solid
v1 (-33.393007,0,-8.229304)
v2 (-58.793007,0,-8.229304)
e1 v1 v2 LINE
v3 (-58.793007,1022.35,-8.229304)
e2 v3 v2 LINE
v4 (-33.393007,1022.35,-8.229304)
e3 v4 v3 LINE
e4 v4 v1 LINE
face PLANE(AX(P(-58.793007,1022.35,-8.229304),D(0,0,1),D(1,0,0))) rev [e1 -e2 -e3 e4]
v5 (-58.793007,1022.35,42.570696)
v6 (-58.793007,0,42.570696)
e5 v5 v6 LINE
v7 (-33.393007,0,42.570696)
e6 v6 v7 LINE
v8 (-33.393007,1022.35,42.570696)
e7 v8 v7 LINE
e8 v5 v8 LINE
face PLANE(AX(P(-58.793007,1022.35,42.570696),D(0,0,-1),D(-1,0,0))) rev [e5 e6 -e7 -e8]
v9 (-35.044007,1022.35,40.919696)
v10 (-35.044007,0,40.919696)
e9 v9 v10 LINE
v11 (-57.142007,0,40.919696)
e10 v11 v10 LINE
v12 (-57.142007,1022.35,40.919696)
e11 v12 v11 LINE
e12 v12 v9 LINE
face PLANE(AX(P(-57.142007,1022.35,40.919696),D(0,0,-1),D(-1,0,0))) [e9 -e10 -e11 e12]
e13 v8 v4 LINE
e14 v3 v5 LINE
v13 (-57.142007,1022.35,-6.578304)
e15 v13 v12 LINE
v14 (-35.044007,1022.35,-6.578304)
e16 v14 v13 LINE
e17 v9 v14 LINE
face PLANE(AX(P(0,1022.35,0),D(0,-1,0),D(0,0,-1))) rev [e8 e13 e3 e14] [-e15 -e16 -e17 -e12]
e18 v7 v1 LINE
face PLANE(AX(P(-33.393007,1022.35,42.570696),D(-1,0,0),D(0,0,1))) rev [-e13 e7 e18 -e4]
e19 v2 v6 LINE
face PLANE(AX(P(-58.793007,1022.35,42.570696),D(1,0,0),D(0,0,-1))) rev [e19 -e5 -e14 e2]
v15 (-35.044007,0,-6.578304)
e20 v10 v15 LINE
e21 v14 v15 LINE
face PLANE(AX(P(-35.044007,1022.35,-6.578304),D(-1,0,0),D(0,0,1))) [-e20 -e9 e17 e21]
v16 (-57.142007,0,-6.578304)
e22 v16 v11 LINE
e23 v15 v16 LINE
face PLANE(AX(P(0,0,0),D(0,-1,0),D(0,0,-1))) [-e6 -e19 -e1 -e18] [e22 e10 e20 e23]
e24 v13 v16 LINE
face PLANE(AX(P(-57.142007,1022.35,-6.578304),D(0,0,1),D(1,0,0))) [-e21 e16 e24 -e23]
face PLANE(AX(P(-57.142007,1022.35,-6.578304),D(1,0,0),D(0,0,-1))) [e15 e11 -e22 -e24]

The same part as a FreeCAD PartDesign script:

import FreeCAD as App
import Part
import Sketcher

V = App.Vector
Q = App.Units.Quantity

doc = App.newDocument("Part")
body = doc.addObject("PartDesign::Body", "Body")

# Sketch on XZ plane
sketch1 = doc.addObject("Sketcher::SketchObject", "Sketch")
body.addObject(sketch1)
sketch1.AttachmentSupport = (doc.XZ_Plane, [""])
sketch1.MapMode = "FlatFace"
sketch1.addGeometry([
    Part.LineSegment(V(-59, -8, 0), V(-59, 43, 0)),  # 0
    Part.LineSegment(V(-59, 43, 0), V(-33, 43, 0)),  # 1
    Part.LineSegment(V(-33, 43, 0), V(-33, -8, 0)),  # 2
    Part.LineSegment(V(-33, -8, 0), V(-59, -8, 0)),  # 3
    Part.LineSegment(V(-35, 41, 0), V(-57, 41, 0)),  # 4
    Part.LineSegment(V(-57, 41, 0), V(-57, -7, 0)),  # 5
    Part.LineSegment(V(-57, -7, 0), V(-35, -7, 0)),  # 6
    Part.LineSegment(V(-35, -7, 0), V(-35, 41, 0)),  # 7
], False)
sketch1.addConstraint([
    Sketcher.Constraint("Coincident", 0, 2, 1, 1),
    Sketcher.Constraint("Coincident", 1, 2, 2, 1),
    Sketcher.Constraint("Coincident", 2, 2, 3, 1),
    Sketcher.Constraint("Coincident", 3, 2, 0, 1),
    Sketcher.Constraint("Coincident", 4, 2, 5, 1),
    Sketcher.Constraint("Coincident", 5, 2, 6, 1),
    Sketcher.Constraint("Coincident", 6, 2, 7, 1),
    Sketcher.Constraint("Coincident", 7, 2, 4, 1),
    Sketcher.Constraint("Vertical", 0),
    Sketcher.Constraint("Horizontal", 1),
    Sketcher.Constraint("Vertical", 2),
    Sketcher.Constraint("Horizontal", 3),
    Sketcher.Constraint("Horizontal", 4),
    Sketcher.Constraint("Vertical", 5),
    Sketcher.Constraint("Horizontal", 6),
    Sketcher.Constraint("Vertical", 7),
    Sketcher.Constraint("DistanceX", 1, 1, 1, 2, Q("1 in")),
    Sketcher.Constraint("DistanceY", 0, 1, 0, 2, Q("2 in")),
    Sketcher.Constraint("DistanceX", 4, 2, 4, 1, Q("0.87 in")),
    Sketcher.Constraint("DistanceY", 5, 2, 5, 1, Q("1.87 in")),
    Sketcher.Constraint("DistanceX", 0, 2, 4, 2, Q("0.065 in")),
    Sketcher.Constraint("DistanceY", 4, 2, 0, 2, Q("0.065 in")),
    Sketcher.Constraint("DistanceX", 0, 2, -1, 1, Q("58.793007 mm")),
    Sketcher.Constraint("DistanceY", -1, 1, 0, 2, Q("42.570696 mm")),
])
pad1 = doc.addObject("PartDesign::Pad", "Pad")
body.addObject(pad1)
pad1.Profile = sketch1
pad1.Length = Q("40.25 in")
pad1.Reversed = True

doc.recompute()
